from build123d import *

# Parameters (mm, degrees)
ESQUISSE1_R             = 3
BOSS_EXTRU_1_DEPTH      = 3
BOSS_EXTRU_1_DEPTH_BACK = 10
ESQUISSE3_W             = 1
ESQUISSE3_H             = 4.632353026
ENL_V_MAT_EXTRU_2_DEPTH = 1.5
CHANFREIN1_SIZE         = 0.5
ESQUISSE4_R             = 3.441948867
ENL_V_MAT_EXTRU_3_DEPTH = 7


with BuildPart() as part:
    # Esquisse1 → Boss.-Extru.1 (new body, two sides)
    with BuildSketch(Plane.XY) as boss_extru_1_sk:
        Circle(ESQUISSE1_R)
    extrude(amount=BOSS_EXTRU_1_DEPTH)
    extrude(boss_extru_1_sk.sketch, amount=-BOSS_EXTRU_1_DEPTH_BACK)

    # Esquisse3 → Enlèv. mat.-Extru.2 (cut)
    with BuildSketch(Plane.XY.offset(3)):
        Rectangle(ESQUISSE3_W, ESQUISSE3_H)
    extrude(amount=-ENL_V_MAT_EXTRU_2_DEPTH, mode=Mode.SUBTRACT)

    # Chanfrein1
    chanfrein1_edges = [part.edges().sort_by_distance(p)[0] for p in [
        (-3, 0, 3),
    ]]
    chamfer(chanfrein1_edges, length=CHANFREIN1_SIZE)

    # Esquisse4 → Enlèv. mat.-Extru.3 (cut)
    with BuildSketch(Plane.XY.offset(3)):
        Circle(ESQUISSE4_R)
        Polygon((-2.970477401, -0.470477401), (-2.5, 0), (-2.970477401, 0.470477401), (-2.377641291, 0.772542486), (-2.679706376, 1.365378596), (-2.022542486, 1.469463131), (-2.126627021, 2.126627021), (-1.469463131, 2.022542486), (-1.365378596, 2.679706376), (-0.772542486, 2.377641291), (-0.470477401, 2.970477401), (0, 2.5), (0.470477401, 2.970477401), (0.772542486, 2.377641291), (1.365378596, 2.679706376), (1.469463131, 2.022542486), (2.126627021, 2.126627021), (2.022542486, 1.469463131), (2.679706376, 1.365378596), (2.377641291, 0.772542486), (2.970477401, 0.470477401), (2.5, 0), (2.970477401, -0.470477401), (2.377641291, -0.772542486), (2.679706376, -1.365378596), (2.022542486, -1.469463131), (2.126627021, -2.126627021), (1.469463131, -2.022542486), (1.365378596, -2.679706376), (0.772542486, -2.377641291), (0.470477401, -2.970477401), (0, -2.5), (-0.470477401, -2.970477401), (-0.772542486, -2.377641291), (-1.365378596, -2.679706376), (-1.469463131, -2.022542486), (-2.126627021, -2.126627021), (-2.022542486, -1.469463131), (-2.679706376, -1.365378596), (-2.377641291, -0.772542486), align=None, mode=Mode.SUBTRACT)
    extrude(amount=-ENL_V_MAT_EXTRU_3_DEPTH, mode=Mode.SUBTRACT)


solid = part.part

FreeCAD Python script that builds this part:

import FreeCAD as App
import Part
import Sketcher

V = App.Vector
Q = App.Units.Quantity


def edges_at(feature, points):
    """Names of the edges that pass closest to the given points."""
    edges = feature.Shape.Edges
    near = lambda p: min(range(len(edges)), key=lambda i: edges[i].distToShape(Part.Vertex(*p))[0])
    return sorted({f"Edge{near(p) + 1}" for p in points})

doc = App.newDocument("Part")
body = doc.addObject("PartDesign::Body", "Body")

# Sketch on XY plane
sketch1 = body.newObject("Sketcher::SketchObject", "Sketch")
sketch1.AttachmentSupport = (doc.getObject("XY_Plane"), [""])
sketch1.MapMode = "FlatFace"
sketch1.addGeometry(Part.Circle(V(0, 0, 0), V(0, 0, 1), 3), False)
sketch1.addConstraint(Sketcher.Constraint("Coincident", 0, 3, -1, 1))
sketch1.addConstraint(Sketcher.Constraint("Diameter", 0, Q("6 mm")))
pad1 = body.newObject("PartDesign::Pad", "Pad")
pad1.Profile = sketch1
pad1.Type = "TwoLengths"
pad1.Length = 3
pad1.Length2 = 10

# Sketch on XY plane
sketch2 = body.newObject("Sketcher::SketchObject", "Sketch001")
sketch2.AttachmentSupport = (doc.getObject("XY_Plane"), [""])
sketch2.MapMode = "FlatFace"
sketch2.AttachmentOffset = App.Placement(V(0, 0, 3), App.Rotation())
sketch2.addGeometry(Part.LineSegment(V(-0.5, 2.3, 0), V(-0.5, -2.3, 0)), False)
sketch2.addGeometry(Part.LineSegment(V(-0.5, -2.3, 0), V(0.5, -2.3, 0)), False)
sketch2.addGeometry(Part.LineSegment(V(0.5, -2.3, 0), V(0.5, 2.3, 0)), False)
sketch2.addGeometry(Part.LineSegment(V(0.5, 2.3, 0), V(-0.5, 2.3, 0)), False)
sketch2.addConstraint(Sketcher.Constraint("Coincident", 0, 2, 1, 1))
sketch2.addConstraint(Sketcher.Constraint("Coincident", 1, 2, 2, 1))
sketch2.addConstraint(Sketcher.Constraint("Coincident", 2, 2, 3, 1))
sketch2.addConstraint(Sketcher.Constraint("Coincident", 3, 2, 0, 1))
sketch2.addConstraint(Sketcher.Constraint("Vertical", 0))
sketch2.addConstraint(Sketcher.Constraint("Horizontal", 1))
sketch2.addConstraint(Sketcher.Constraint("Vertical", 2))
sketch2.addConstraint(Sketcher.Constraint("Horizontal", 3))
sketch2.addConstraint(Sketcher.Constraint("Symmetric", 0, 2, 2, 2, -1, 1))
sketch2.addConstraint(Sketcher.Constraint("DistanceX", 1, 1, 1, 2, Q("1 mm")))
sketch2.addConstraint(Sketcher.Constraint("DistanceY", 0, 2, 0, 1, Q("4.632353 mm")))
pocket1 = body.newObject("PartDesign::Pocket", "Pocket")
pocket1.Profile = sketch2
pocket1.Length = 1.5
doc.recompute()

chamfer = body.newObject("PartDesign::Chamfer", "Chamfer")
chamfer.Base = (pocket1, edges_at(pocket1, [(-3, 0, 3)]))
chamfer.Size = 0.5

# Sketch on XY plane
sketch3 = body.newObject("Sketcher::SketchObject", "Sketch002")
sketch3.AttachmentSupport = (doc.getObject("XY_Plane"), [""])
sketch3.MapMode = "FlatFace"
sketch3.AttachmentOffset = App.Placement(V(0, 0, 3), App.Rotation())
sketch3.addGeometry(Part.Circle(V(0, 0, 0), V(0, 0, 1), 3.4), False)
sketch3.addGeometry(Part.LineSegment(V(-2.4, -0.8, 0), V(-3, -0.5, 0)), False)
sketch3.addGeometry(Part.LineSegment(V(-3, -0.5, 0), V(-2.5, 0, 0)), False)
sketch3.addGeometry(Part.LineSegment(V(-2.5, 0, 0), V(-3, 0.5, 0)), False)
sketch3.addGeometry(Part.LineSegment(V(-3, 0.5, 0), V(-2.4, 0.8, 0)), False)
sketch3.addGeometry(Part.LineSegment(V(-2.4, 0.8, 0), V(-2.7, 1.4, 0)), False)
sketch3.addGeometry(Part.LineSegment(V(-2.7, 1.4, 0), V(-2, 1.5, 0)), False)
sketch3.addGeometry(Part.LineSegment(V(-2, 1.5, 0), V(-2.1, 2.1, 0)), False)
sketch3.addGeometry(Part.LineSegment(V(-2.1, 2.1, 0), V(-1.5, 2, 0)), False)
sketch3.addGeometry(Part.LineSegment(V(-1.5, 2, 0), V(-1.4, 2.7, 0)), False)
sketch3.addGeometry(Part.LineSegment(V(-1.4, 2.7, 0), V(-0.8, 2.4, 0)), False)
sketch3.addGeometry(Part.LineSegment(V(-0.8, 2.4, 0), V(-0.5, 3, 0)), False)
sketch3.addGeometry(Part.LineSegment(V(-0.5, 3, 0), V(0, 2.5, 0)), False)
sketch3.addGeometry(Part.LineSegment(V(0, 2.5, 0), V(0.5, 3, 0)), False)
sketch3.addGeometry(Part.LineSegment(V(0.5, 3, 0), V(0.8, 2.4, 0)), False)
sketch3.addGeometry(Part.LineSegment(V(0.8, 2.4, 0), V(1.4, 2.7, 0)), False)
sketch3.addGeometry(Part.LineSegment(V(1.4, 2.7, 0), V(1.5, 2, 0)), False)
sketch3.addGeometry(Part.LineSegment(V(1.5, 2, 0), V(2.1, 2.1, 0)), False)
sketch3.addGeometry(Part.LineSegment(V(2.1, 2.1, 0), V(2, 1.5, 0)), False)
sketch3.addGeometry(Part.LineSegment(V(2, 1.5, 0), V(2.7, 1.4, 0)), False)
sketch3.addGeometry(Part.LineSegment(V(2.7, 1.4, 0), V(2.4, 0.8, 0)), False)
sketch3.addGeometry(Part.LineSegment(V(2.4, 0.8, 0), V(3, 0.5, 0)), False)
sketch3.addGeometry(Part.LineSegment(V(3, 0.5, 0), V(2.5, 0, 0)), False)
sketch3.addGeometry(Part.LineSegment(V(2.5, 0, 0), V(3, -0.5, 0)), False)
sketch3.addGeometry(Part.LineSegment(V(3, -0.5, 0), V(2.4, -0.8, 0)), False)
sketch3.addGeometry(Part.LineSegment(V(2.4, -0.8, 0), V(2.7, -1.4, 0)), False)
sketch3.addGeometry(Part.LineSegment(V(2.7, -1.4, 0), V(2, -1.5, 0)), False)
sketch3.addGeometry(Part.LineSegment(V(2, -1.5, 0), V(2.1, -2.1, 0)), False)
sketch3.addGeometry(Part.LineSegment(V(2.1, -2.1, 0), V(1.5, -2, 0)), False)
sketch3.addGeometry(Part.LineSegment(V(1.5, -2, 0), V(1.4, -2.7, 0)), False)
sketch3.addGeometry(Part.LineSegment(V(1.4, -2.7, 0), V(0.8, -2.4, 0)), False)
sketch3.addGeometry(Part.LineSegment(V(0.8, -2.4, 0), V(0.5, -3, 0)), False)
sketch3.addGeometry(Part.LineSegment(V(0.5, -3, 0), V(0, -2.5, 0)), False)
sketch3.addGeometry(Part.LineSegment(V(0, -2.5, 0), V(-0.5, -3, 0)), False)
sketch3.addGeometry(Part.LineSegment(V(-0.5, -3, 0), V(-0.8, -2.4, 0)), False)
sketch3.addGeometry(Part.LineSegment(V(-0.8, -2.4, 0), V(-1.4, -2.7, 0)), False)
sketch3.addGeometry(Part.LineSegment(V(-1.4, -2.7, 0), V(-1.5, -2, 0)), False)
sketch3.addGeometry(Part.LineSegment(V(-1.5, -2, 0), V(-2.1, -2.1, 0)), False)
sketch3.addGeometry(Part.LineSegment(V(-2.1, -2.1, 0), V(-2, -1.5, 0)), False)
sketch3.addGeometry(Part.LineSegment(V(-2, -1.5, 0), V(-2.7, -1.4, 0)), False)
sketch3.addGeometry(Part.LineSegment(V(-2.7, -1.4, 0), V(-2.4, -0.8, 0)), False)
sketch3.addConstraint(Sketcher.Constraint("Coincident", 1, 2, 2, 1))
sketch3.addConstraint(Sketcher.Constraint("Coincident", 2, 2, 3, 1))
sketch3.addConstraint(Sketcher.Constraint("Coincident", 3, 2, 4, 1))
sketch3.addConstraint(Sketcher.Constraint("Coincident", 4, 2, 5, 1))
sketch3.addConstraint(Sketcher.Constraint("Coincident", 5, 2, 6, 1))
sketch3.addConstraint(Sketcher.Constraint("Coincident", 6, 2, 7, 1))
sketch3.addConstraint(Sketcher.Constraint("Coincident", 7, 2, 8, 1))
sketch3.addConstraint(Sketcher.Constraint("Coincident", 8, 2, 9, 1))
sketch3.addConstraint(Sketcher.Constraint("Coincident", 9, 2, 10, 1))
sketch3.addConstraint(Sketcher.Constraint("Coincident", 10, 2, 11, 1))
sketch3.addConstraint(Sketcher.Constraint("Coincident", 11, 2, 12, 1))
sketch3.addConstraint(Sketcher.Constraint("Coincident", 12, 2, 13, 1))
sketch3.addConstraint(Sketcher.Constraint("Coincident", 13, 2, 14, 1))
sketch3.addConstraint(Sketcher.Constraint("Coincident", 14, 2, 15, 1))
sketch3.addConstraint(Sketcher.Constraint("Coincident", 15, 2, 16, 1))
sketch3.addConstraint(Sketcher.Constraint("Coincident", 16, 2, 17, 1))
sketch3.addConstraint(Sketcher.Constraint("Coincident", 17, 2, 18, 1))
sketch3.addConstraint(Sketcher.Constraint("Coincident", 18, 2, 19, 1))
sketch3.addConstraint(Sketcher.Constraint("Coincident", 19, 2, 20, 1))
sketch3.addConstraint(Sketcher.Constraint("Coincident", 20, 2, 21, 1))
sketch3.addConstraint(Sketcher.Constraint("Coincident", 21, 2, 22, 1))
sketch3.addConstraint(Sketcher.Constraint("Coincident", 22, 2, 23, 1))
sketch3.addConstraint(Sketcher.Constraint("Coincident", 23, 2, 24, 1))
sketch3.addConstraint(Sketcher.Constraint("Coincident", 24, 2, 25, 1))
sketch3.addConstraint(Sketcher.Constraint("Coincident", 25, 2, 26, 1))
sketch3.addConstraint(Sketcher.Constraint("Coincident", 26, 2, 27, 1))
sketch3.addConstraint(Sketcher.Constraint("Coincident", 27, 2, 28, 1))
sketch3.addConstraint(Sketcher.Constraint("Coincident", 28, 2, 29, 1))
sketch3.addConstraint(Sketcher.Constraint("Coincident", 29, 2, 30, 1))
sketch3.addConstraint(Sketcher.Constraint("Coincident", 30, 2, 31, 1))
sketch3.addConstraint(Sketcher.Constraint("Coincident", 31, 2, 32, 1))
sketch3.addConstraint(Sketcher.Constraint("Coincident", 32, 2, 33, 1))
sketch3.addConstraint(Sketcher.Constraint("Coincident", 33, 2, 34, 1))
sketch3.addConstraint(Sketcher.Constraint("Coincident", 34, 2, 35, 1))
sketch3.addConstraint(Sketcher.Constraint("Coincident", 35, 2, 36, 1))
sketch3.addConstraint(Sketcher.Constraint("Coincident", 36, 2, 37, 1))
sketch3.addConstraint(Sketcher.Constraint("Coincident", 37, 2, 38, 1))
sketch3.addConstraint(Sketcher.Constraint("Coincident", 38, 2, 39, 1))
sketch3.addConstraint(Sketcher.Constraint("Coincident", 39, 2, 40, 1))
sketch3.addConstraint(Sketcher.Constraint("Coincident", 40, 2, 1, 1))
sketch3.addConstraint(Sketcher.Constraint("Coincident", 0, 3, -1, 1))
sketch3.addConstraint(Sketcher.Constraint("Symmetric", 1, 2, 21, 2, -1, 1))
sketch3.addConstraint(Sketcher.Constraint("Symmetric", 2, 2, 22, 2, -1, 1))
sketch3.addConstraint(Sketcher.Constraint("Symmetric", 3, 2, 23, 2, -1, 1))
sketch3.addConstraint(Sketcher.Constraint("Symmetric", 4, 2, 24, 2, -1, 1))
sketch3.addConstraint(Sketcher.Constraint("Symmetric", 5, 2, 25, 2, -1, 1))
sketch3.addConstraint(Sketcher.Constraint("Symmetric", 6, 2, 26, 2, -1, 1))
sketch3.addConstraint(Sketcher.Constraint("Symmetric", 7, 2, 27, 2, -1, 1))
sketch3.addConstraint(Sketcher.Constraint("Symmetric", 8, 2, 28, 2, -1, 1))
sketch3.addConstraint(Sketcher.Constraint("Symmetric", 9, 2, 29, 2, -1, 1))
sketch3.addConstraint(Sketcher.Constraint("Symmetric", 10, 2, 30, 2, -1, 1))
sketch3.addConstraint(Sketcher.Constraint("Symmetric", 11, 2, 31, 2, -1, 1))
sketch3.addConstraint(Sketcher.Constraint("Symmetric", 12, 2, 32, 2, -1, 1))
sketch3.addConstraint(Sketcher.Constraint("Symmetric", 13, 2, 33, 2, -1, 1))
sketch3.addConstraint(Sketcher.Constraint("Symmetric", 14, 2, 34, 2, -1, 1))
sketch3.addConstraint(Sketcher.Constraint("Symmetric", 15, 2, 35, 2, -1, 1))
sketch3.addConstraint(Sketcher.Constraint("Symmetric", 16, 2, 36, 2, -1, 1))
sketch3.addConstraint(Sketcher.Constraint("Symmetric", 17, 2, 37, 2, -1, 1))
sketch3.addConstraint(Sketcher.Constraint("Symmetric", 18, 2, 38, 2, -1, 1))
sketch3.addConstraint(Sketcher.Constraint("Symmetric", 19, 2, 39, 2, -1, 1))
sketch3.addConstraint(Sketcher.Constraint("Symmetric", 20, 2, 40, 2, -1, 1))
sketch3.addConstraint(Sketcher.Constraint("Symmetric", 11, 2, 13, 2, -2))
sketch3.addConstraint(Sketcher.Constraint("Symmetric", 10, 2, 14, 2, -2))
sketch3.addConstraint(Sketcher.Constraint("Symmetric", 9, 2, 15, 2, -2))
sketch3.addConstraint(Sketcher.Constraint("Symmetric", 8, 2, 16, 2, -2))
sketch3.addConstraint(Sketcher.Constraint("Symmetric", 7, 2, 17, 2, -2))
sketch3.addConstraint(Sketcher.Constraint("Symmetric", 6, 2, 18, 2, -2))
sketch3.addConstraint(Sketcher.Constraint("Symmetric", 5, 2, 19, 2, -2))
sketch3.addConstraint(Sketcher.Constraint("Symmetric", 4, 2, 20, 2, -2))
sketch3.addConstraint(Sketcher.Constraint("Symmetric", 3, 2, 21, 2, -2))
sketch3.addConstraint(Sketcher.Constraint("PointOnObject", 2, 2, -1))
sketch3.addConstraint(Sketcher.Constraint("PointOnObject", 12, 2, -2))
sketch3.addConstraint(Sketcher.Constraint("Perpendicular", 2, 3))
sketch3.addConstraint(Sketcher.Constraint("Perpendicular", 4, 5))
sketch3.addConstraint(Sketcher.Constraint("Perpendicular", 6, 7))
sketch3.addConstraint(Sketcher.Constraint("Perpendicular", 8, 9))
sketch3.addConstraint(Sketcher.Constraint("Parallel", 1, 10))
sketch3.addConstraint(Sketcher.Constraint("Perpendicular", 10, 11))
sketch3.addConstraint(Sketcher.Constraint("Parallel", 3, 12))
sketch3.addConstraint(Sketcher.Constraint("Parallel", 7, 16))
sketch3.addConstraint(Sketcher.Constraint("Equal", 1, 2))
sketch3.addConstraint(Sketcher.Constraint("Equal", 4, 5))
sketch3.addConstraint(Sketcher.Constraint("Equal", 5, 6))
sketch3.addConstraint(Sketcher.Constraint("Equal", 6, 7))
sketch3.addConstraint(Sketcher.Constraint("Equal", 7, 8))
sketch3.addConstraint(Sketcher.Constraint("Equal", 8, 9))
sketch3.addConstraint(Sketcher.Constraint("Equal", 9, 10))
sketch3.addConstraint(Sketcher.Constraint("Equal", 10, 11))
sketch3.addConstraint(Sketcher.Constraint("Equal", 11, 12))
sketch3.addConstraint(Sketcher.Constraint("Angle", 1, Q("153 deg")))
sketch3.addConstraint(Sketcher.Constraint("Angle", 6, Q("9 deg")))
sketch3.addConstraint(Sketcher.Constraint("DistanceX", 2, 2, -1, 1, Q("2.5 mm")))
sketch3.addConstraint(Sketcher.Constraint("Diameter", 0, Q("6.883898 mm")))
pocket2 = body.newObject("PartDesign::Pocket", "Pocket001")
pocket2.Profile = sketch3
pocket2.Length = 7

doc.recompute()
